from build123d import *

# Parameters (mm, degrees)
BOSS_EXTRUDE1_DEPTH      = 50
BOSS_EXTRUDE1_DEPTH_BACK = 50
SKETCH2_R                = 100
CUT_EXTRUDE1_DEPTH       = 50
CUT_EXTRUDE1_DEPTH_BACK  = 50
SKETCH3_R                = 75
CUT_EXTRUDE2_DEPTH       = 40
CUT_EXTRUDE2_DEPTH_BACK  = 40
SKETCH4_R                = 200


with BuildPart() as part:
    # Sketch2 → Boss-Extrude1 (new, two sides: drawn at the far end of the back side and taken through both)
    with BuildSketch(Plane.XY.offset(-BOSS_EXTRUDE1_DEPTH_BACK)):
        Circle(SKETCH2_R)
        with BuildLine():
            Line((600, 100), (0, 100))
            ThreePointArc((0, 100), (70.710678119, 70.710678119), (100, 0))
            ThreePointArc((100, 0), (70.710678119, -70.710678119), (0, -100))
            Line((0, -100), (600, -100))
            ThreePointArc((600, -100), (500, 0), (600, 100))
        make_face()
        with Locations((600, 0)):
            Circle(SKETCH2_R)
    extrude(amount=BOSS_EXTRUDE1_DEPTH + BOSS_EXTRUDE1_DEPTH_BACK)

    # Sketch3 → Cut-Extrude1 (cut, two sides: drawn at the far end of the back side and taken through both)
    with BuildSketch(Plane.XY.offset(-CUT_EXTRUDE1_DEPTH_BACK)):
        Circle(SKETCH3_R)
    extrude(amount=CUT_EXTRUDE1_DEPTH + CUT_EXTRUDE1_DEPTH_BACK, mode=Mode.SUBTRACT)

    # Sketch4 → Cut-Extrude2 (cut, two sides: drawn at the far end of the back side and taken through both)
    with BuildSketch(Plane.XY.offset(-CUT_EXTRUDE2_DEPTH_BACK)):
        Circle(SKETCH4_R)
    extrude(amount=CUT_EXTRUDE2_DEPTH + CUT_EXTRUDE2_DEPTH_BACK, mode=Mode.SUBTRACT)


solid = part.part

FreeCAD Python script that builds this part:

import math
import FreeCAD as App
import Part
import Sketcher
from FreeCAD import Vector
Q = App.Units.Quantity

doc = App.newDocument("Part")
body = doc.addObject("PartDesign::Body", "Body")

sketch1 = body.newObject("Sketcher::SketchObject", "Sketch")
sketch1.AttachmentSupport = (doc.getObject("XY_Plane"), [""])
sketch1.MapMode = "FlatFace"
sketch1.addGeometry(Part.ArcOfCircle(Part.Circle(Vector(0, 0, 0), Vector(0, 0, 1), 100), math.radians(90), math.radians(270)), False)
sketch1.addGeometry(Part.LineSegment(Vector(0, -100, 0), Vector(600, -100, 0)), False)
sketch1.addGeometry(Part.ArcOfCircle(Part.Circle(Vector(600, 0, 0), Vector(0, 0, 1), 100), math.radians(-90), math.radians(90)), False)
sketch1.addGeometry(Part.LineSegment(Vector(600, 100, 0), Vector(0, 100, 0)), False)
sketch1.addConstraint(Sketcher.Constraint("Tangent", 0, 2, 1, 1))
sketch1.addConstraint(Sketcher.Constraint("Tangent", 1, 2, 2, 1))
sketch1.addConstraint(Sketcher.Constraint("Tangent", 2, 2, 3, 1))
sketch1.addConstraint(Sketcher.Constraint("Tangent", 3, 2, 0, 1))
sketch1.addConstraint(Sketcher.Constraint("Horizontal", 1))
sketch1.addConstraint(Sketcher.Constraint("Horizontal", 3))
sketch1.addConstraint(Sketcher.Constraint("Coincident", 0, 3, -1, 1))
sketch1.addConstraint(Sketcher.Constraint("Radius", 0, Q("100 mm")))
sketch1.addConstraint(Sketcher.Constraint("DistanceX", 1, 1, 1, 2, Q("600 mm")))
pad1 = body.newObject("PartDesign::Pad", "Pad")
pad1.Profile = sketch1
pad1.Type = "TwoLengths"
pad1.Length = 50
pad1.Length2 = 50

sketch2 = body.newObject("Sketcher::SketchObject", "Sketch001")
sketch2.AttachmentSupport = (doc.getObject("XY_Plane"), [""])
sketch2.MapMode = "FlatFace"
sketch2.addGeometry(Part.Circle(Vector(0, 0, 0), Vector(0, 0, 1), 75), False)
sketch2.addConstraint(Sketcher.Constraint("Coincident", 0, 3, -1, 1))
sketch2.addConstraint(Sketcher.Constraint("Diameter", 0, Q("150 mm")))
pocket1 = body.newObject("PartDesign::Pocket", "Pocket")
pocket1.Profile = sketch2
pocket1.Type = "ThroughAll"
pocket1.Midplane = True

sketch3 = body.newObject("Sketcher::SketchObject", "Sketch002")
sketch3.AttachmentSupport = (doc.getObject("XY_Plane"), [""])
sketch3.MapMode = "FlatFace"
sketch3.addGeometry(Part.Circle(Vector(0, 0, 0), Vector(0, 0, 1), 200), False)
sketch3.addConstraint(Sketcher.Constraint("Coincident", 0, 3, -1, 1))
sketch3.addConstraint(Sketcher.Constraint("Diameter", 0, Q("400 mm")))
pocket2 = body.newObject("PartDesign::Pocket", "Pocket001")
pocket2.Profile = sketch3
pocket2.Type = "TwoLengths"
pocket2.Length = 40
pocket2.Length2 = 40
pocket2.Reversed = True

doc.recompute()
